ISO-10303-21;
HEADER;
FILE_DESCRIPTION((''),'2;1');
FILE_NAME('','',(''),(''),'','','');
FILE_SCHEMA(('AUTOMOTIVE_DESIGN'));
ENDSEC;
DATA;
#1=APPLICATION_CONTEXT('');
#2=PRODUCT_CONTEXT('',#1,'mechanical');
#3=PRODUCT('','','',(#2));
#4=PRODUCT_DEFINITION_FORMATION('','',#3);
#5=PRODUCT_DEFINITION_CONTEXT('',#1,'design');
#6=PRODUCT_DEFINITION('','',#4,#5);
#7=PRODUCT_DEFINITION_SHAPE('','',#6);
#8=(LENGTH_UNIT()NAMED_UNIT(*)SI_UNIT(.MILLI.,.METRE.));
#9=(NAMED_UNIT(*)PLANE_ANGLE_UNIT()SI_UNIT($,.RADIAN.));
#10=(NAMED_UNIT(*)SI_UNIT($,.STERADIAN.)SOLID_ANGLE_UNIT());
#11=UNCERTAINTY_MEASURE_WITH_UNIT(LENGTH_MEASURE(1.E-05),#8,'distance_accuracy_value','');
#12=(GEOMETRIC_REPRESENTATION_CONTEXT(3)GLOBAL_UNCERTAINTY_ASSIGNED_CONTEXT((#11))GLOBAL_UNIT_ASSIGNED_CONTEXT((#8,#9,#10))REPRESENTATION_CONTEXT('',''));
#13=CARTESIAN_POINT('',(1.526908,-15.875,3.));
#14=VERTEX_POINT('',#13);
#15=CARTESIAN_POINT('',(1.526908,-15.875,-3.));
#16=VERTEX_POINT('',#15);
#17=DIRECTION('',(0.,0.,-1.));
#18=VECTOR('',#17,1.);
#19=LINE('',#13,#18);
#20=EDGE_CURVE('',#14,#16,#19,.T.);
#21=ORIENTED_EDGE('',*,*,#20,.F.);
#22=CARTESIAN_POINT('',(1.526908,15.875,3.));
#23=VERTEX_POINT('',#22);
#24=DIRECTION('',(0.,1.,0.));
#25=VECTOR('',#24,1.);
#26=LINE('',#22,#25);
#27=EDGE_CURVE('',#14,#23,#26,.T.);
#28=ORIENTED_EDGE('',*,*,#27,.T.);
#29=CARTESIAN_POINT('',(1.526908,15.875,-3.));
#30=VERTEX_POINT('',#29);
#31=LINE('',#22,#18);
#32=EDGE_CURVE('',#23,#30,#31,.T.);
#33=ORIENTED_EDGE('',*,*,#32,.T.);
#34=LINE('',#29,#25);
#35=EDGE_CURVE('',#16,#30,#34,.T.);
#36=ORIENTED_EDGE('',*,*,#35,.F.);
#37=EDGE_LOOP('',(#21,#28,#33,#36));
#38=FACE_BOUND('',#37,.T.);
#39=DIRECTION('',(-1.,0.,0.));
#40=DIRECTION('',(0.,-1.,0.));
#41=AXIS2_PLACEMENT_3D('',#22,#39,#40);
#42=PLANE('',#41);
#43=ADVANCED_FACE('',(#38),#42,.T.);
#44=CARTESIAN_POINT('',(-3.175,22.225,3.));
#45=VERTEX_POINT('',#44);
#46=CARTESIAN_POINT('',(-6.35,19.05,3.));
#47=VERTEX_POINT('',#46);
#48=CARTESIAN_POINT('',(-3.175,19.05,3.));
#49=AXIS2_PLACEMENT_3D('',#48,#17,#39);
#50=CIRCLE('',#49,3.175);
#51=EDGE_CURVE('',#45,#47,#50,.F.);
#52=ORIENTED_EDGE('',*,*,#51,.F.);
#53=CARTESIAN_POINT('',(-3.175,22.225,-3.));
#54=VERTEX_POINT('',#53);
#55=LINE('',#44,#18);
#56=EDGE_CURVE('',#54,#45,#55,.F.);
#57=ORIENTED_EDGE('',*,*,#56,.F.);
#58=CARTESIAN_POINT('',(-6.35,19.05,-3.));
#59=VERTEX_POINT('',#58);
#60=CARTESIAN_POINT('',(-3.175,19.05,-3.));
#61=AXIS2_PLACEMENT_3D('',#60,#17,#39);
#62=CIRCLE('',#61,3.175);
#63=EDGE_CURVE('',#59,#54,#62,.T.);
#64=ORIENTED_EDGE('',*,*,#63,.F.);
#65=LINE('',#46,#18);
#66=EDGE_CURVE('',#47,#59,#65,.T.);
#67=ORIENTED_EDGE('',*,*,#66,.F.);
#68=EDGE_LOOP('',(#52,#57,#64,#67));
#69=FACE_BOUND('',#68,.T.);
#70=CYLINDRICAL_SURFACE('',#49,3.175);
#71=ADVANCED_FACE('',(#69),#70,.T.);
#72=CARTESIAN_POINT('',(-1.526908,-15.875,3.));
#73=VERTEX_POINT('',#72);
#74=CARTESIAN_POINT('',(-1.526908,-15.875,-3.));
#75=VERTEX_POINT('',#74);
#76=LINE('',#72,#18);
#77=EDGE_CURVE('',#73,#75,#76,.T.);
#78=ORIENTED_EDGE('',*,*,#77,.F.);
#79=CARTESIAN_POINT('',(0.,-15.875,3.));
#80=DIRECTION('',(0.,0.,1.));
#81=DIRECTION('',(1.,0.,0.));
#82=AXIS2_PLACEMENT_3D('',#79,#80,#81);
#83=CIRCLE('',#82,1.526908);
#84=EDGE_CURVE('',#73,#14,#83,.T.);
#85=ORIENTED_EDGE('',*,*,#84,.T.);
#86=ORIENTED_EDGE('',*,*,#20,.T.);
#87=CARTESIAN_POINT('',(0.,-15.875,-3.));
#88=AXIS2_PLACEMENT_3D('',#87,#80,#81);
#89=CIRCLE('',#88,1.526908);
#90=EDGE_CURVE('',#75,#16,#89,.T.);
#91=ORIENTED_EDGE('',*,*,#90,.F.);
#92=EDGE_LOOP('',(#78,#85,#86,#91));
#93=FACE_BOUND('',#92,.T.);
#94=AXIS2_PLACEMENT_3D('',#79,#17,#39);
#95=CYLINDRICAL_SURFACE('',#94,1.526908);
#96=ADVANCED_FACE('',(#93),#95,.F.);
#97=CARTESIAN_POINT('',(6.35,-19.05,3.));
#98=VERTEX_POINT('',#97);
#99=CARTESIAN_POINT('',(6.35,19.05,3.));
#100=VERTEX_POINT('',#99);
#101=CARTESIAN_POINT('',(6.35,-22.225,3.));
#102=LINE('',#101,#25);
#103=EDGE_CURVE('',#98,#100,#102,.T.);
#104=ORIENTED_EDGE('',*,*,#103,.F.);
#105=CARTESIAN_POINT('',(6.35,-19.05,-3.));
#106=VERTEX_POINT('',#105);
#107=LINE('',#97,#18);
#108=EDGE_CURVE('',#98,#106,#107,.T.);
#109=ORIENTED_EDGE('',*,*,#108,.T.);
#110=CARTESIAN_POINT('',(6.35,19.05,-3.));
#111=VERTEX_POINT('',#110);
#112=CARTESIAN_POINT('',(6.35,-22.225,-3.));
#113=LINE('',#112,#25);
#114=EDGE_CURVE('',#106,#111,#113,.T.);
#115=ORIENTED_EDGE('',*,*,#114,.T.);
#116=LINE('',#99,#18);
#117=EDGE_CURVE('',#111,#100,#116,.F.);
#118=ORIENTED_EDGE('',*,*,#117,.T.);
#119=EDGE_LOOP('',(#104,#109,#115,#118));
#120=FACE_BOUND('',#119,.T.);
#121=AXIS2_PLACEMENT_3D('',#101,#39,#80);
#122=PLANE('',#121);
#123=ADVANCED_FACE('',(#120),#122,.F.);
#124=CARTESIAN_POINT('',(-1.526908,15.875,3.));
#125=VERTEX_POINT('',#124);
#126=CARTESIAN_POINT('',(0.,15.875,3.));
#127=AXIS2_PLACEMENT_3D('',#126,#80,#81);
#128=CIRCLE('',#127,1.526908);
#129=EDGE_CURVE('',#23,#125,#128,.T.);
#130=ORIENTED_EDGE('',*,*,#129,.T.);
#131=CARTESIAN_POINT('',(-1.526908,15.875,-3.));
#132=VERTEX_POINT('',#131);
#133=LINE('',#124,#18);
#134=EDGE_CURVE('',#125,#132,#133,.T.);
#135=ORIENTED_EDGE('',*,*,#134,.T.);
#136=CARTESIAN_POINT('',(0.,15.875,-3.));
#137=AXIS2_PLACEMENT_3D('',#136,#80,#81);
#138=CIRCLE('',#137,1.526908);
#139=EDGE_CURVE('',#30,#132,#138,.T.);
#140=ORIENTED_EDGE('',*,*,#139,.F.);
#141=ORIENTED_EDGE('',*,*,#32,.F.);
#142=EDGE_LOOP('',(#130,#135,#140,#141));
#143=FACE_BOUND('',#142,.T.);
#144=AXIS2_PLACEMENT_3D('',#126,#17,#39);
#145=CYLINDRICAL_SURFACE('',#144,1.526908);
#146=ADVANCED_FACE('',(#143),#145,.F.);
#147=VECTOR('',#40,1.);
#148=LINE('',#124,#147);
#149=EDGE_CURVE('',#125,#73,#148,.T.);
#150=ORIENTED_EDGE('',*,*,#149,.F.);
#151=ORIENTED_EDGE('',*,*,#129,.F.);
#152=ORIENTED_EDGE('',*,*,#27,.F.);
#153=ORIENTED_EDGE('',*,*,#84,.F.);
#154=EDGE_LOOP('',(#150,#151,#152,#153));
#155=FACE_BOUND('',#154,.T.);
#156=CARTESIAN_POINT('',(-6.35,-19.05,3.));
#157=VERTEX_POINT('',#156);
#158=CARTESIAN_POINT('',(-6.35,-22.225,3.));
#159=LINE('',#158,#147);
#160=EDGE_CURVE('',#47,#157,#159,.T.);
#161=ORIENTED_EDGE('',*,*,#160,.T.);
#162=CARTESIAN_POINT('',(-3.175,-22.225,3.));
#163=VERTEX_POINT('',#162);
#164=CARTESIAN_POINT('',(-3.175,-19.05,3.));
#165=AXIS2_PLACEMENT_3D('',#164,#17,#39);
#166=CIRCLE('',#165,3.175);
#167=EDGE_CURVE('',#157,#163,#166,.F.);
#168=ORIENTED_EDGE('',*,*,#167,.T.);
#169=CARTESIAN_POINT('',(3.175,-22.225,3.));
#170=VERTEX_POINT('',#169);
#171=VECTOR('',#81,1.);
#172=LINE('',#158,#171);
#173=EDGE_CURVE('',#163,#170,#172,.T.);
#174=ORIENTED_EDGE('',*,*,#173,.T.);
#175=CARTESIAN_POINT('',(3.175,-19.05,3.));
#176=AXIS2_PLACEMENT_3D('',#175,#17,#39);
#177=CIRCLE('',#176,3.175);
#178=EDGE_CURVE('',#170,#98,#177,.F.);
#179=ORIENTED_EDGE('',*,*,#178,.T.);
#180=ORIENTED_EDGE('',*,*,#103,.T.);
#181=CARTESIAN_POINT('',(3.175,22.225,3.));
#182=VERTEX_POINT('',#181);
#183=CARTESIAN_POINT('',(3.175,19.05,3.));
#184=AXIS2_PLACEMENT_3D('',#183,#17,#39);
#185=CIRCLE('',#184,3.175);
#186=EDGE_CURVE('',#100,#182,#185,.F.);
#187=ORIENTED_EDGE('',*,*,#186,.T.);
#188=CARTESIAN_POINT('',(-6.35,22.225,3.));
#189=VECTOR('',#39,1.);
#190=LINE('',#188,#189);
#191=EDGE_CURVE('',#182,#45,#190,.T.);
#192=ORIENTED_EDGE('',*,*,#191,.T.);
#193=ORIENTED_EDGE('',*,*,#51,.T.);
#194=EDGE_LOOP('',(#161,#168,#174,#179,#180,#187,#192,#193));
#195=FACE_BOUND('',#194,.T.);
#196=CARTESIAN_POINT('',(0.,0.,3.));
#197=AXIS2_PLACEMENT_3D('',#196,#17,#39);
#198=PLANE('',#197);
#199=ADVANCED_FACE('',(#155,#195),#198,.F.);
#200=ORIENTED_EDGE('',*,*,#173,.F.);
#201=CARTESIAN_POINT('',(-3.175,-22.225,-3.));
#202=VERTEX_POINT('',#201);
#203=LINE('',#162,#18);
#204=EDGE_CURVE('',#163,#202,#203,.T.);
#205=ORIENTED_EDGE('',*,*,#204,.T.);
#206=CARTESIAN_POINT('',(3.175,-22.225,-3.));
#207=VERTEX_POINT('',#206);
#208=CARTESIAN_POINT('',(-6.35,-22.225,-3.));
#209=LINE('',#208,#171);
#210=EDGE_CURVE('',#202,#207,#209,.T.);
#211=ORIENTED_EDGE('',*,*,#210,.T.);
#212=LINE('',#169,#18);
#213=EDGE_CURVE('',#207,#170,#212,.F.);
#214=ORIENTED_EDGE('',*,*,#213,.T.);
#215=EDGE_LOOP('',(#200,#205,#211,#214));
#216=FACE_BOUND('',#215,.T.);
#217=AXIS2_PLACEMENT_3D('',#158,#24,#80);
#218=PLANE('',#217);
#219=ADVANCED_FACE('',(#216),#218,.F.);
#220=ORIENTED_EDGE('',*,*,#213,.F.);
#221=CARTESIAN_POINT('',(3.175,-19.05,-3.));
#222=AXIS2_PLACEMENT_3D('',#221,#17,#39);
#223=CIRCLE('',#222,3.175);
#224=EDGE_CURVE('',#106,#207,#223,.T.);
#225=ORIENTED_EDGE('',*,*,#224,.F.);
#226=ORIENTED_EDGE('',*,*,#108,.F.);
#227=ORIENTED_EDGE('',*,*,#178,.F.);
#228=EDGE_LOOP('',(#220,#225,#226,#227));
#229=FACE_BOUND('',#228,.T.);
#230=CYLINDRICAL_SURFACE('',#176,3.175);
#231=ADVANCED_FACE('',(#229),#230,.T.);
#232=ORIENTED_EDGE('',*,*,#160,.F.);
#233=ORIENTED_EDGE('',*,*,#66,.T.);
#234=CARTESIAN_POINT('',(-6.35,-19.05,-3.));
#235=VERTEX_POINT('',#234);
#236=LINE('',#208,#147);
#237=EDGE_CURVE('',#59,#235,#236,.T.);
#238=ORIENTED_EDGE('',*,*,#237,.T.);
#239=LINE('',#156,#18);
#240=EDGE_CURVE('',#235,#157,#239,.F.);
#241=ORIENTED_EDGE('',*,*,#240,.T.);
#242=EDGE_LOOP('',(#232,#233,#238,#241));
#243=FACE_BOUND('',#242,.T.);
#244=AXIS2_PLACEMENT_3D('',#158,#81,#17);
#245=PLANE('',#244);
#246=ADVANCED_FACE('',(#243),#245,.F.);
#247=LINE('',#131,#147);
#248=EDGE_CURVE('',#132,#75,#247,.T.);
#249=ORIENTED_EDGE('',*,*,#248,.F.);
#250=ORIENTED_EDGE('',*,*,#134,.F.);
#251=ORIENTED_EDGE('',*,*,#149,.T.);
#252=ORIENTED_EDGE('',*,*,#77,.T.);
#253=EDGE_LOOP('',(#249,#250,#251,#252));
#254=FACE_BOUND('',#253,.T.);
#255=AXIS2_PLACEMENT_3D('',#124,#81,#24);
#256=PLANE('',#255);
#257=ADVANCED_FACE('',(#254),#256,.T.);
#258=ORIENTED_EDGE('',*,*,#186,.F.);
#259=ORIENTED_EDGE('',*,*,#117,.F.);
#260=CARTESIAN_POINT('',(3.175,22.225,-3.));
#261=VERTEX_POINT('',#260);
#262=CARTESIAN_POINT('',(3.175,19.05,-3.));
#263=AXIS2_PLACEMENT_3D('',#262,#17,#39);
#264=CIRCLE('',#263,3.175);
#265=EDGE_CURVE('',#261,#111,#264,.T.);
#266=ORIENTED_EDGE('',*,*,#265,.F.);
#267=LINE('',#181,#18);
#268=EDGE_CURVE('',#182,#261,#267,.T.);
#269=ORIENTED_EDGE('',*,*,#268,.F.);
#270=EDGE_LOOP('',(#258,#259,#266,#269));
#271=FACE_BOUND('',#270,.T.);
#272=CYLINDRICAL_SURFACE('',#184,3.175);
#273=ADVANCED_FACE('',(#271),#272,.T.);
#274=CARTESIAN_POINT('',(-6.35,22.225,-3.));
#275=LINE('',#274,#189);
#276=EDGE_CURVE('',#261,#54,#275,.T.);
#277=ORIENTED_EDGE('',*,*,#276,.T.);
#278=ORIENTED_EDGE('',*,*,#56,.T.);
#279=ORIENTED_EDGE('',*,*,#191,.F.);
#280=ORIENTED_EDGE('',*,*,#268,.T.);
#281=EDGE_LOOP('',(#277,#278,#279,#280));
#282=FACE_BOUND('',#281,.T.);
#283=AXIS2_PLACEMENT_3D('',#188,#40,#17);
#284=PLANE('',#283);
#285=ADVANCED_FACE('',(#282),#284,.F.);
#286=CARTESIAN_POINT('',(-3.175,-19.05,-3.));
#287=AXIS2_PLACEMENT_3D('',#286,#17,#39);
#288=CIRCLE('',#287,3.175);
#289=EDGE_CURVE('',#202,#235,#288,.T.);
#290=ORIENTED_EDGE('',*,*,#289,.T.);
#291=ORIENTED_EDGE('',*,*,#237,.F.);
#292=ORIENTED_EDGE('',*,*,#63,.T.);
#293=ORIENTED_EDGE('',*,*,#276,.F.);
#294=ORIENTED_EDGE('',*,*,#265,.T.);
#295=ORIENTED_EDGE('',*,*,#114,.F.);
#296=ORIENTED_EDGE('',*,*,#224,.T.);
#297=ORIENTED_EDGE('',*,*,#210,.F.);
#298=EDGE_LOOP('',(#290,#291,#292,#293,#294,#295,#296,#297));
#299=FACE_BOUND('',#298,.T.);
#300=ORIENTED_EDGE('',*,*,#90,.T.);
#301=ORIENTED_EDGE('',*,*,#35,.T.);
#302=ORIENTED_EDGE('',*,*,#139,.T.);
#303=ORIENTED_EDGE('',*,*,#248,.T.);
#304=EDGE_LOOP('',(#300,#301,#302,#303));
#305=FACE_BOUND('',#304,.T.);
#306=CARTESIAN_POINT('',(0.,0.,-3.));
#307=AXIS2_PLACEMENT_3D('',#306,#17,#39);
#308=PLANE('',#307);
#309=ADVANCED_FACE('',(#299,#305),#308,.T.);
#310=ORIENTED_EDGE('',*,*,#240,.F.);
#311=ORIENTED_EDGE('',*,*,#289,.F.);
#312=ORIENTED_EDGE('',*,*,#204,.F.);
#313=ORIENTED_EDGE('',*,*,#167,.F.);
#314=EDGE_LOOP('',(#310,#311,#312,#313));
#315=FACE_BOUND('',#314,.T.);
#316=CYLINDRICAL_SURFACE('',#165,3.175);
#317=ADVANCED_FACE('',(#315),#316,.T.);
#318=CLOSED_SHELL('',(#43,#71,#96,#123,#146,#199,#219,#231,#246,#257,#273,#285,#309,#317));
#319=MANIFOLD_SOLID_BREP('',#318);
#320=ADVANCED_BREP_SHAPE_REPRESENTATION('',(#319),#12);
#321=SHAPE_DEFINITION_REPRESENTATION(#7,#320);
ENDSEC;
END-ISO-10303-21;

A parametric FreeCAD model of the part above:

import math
import FreeCAD as App
import Part
import Sketcher
from FreeCAD import Vector
Q = App.Units.Quantity


def edges_at(feature, points):
    """Names of the edges that pass closest to the given points."""
    edges = feature.Shape.Edges
    near = lambda p: min(range(len(edges)), key=lambda i: edges[i].distToShape(Part.Vertex(*p))[0])
    return sorted({f"Edge{near(p) + 1}" for p in points})


def add_polygon(sketch, points):
    """Adds a closed chain of lines whose ends are joined by coincident constraints."""
    first, n = sketch.GeometryCount, len(points)
    for a, b in zip(points, points[1:] + points[:1]):
        sketch.addGeometry(Part.LineSegment(App.Vector(*a, 0), App.Vector(*b, 0)), False)
    for i in range(n):
        sketch.addConstraint(Sketcher.Constraint("Coincident", first + i, 2, first + (i + 1) % n, 1))

doc = App.newDocument("Part")
body = doc.addObject("PartDesign::Body", "Body")

# Sketch on XY plane
sketch1 = body.newObject("Sketcher::SketchObject", "Sketch")
sketch1.AttachmentSupport = (doc.getObject("XY_Plane"), [""])
sketch1.MapMode = "FlatFace"
add_polygon(sketch1, [(-6.35, 22.225), (-6.35, -22.225), (6.35, -22.225), (6.35, 22.225)])  # lines 0-3
sketch1.addGeometry(Part.ArcOfCircle(Part.Circle(Vector(0, 15.875, 0), Vector(0, 0, 1), 1.526908), math.radians(0), math.radians(180)), False)  # 4
sketch1.addGeometry(Part.LineSegment(Vector(1.526908, 15.875, 0), Vector(1.526908, -15.875, 0)), False)  # 5
sketch1.addGeometry(Part.ArcOfCircle(Part.Circle(Vector(0, -15.875, 0), Vector(0, 0, 1), 1.526908), math.radians(180), math.radians(360)), False)  # 6
sketch1.addGeometry(Part.LineSegment(Vector(-1.526908, -15.875, 0), Vector(-1.526908, 15.875, 0)), False)  # 7
sketch1.addConstraint([
    Sketcher.Constraint("Tangent", 4, 1, 5, 1),
    Sketcher.Constraint("Tangent", 5, 2, 6, 2),
    Sketcher.Constraint("Tangent", 6, 1, 7, 1),
    Sketcher.Constraint("Tangent", 7, 2, 4, 2),
    Sketcher.Constraint("Vertical", 0),
    Sketcher.Constraint("Horizontal", 1),
    Sketcher.Constraint("Vertical", 2),
    Sketcher.Constraint("Horizontal", 3),
    Sketcher.Constraint("Vertical", 5),
    Sketcher.Constraint("Vertical", 7),
    Sketcher.Constraint("Symmetric", 4, 3, 6, 3, -1, 1),
    Sketcher.Constraint("Symmetric", 0, 2, 2, 2, -1, 1),
    Sketcher.Constraint("DistanceX", 1, 1, 1, 2, Q("0.5 in")),
    Sketcher.Constraint("DistanceY", 0, 2, 0, 1, Q("1.75 in")),
    Sketcher.Constraint("DistanceY", 5, 2, 5, 1, Q("1.25 in")),
    Sketcher.Constraint("Radius", 4, 1.526908),
])
pad1 = body.newObject("PartDesign::Pad", "Pad")
pad1.Profile = sketch1
pad1.Length = 6
pad1.Midplane = True
doc.recompute()

fillet = body.newObject("PartDesign::Fillet", "Fillet")
fillet.Base = (pad1, edges_at(pad1, [
    (6.35, -22.225, 0),
    (-6.35, -22.225, 0),
    (-6.35, 22.225, 0),
    (6.35, 22.225, 0),
]))
fillet.Radius = Q("0.125 in")

doc.recompute()
